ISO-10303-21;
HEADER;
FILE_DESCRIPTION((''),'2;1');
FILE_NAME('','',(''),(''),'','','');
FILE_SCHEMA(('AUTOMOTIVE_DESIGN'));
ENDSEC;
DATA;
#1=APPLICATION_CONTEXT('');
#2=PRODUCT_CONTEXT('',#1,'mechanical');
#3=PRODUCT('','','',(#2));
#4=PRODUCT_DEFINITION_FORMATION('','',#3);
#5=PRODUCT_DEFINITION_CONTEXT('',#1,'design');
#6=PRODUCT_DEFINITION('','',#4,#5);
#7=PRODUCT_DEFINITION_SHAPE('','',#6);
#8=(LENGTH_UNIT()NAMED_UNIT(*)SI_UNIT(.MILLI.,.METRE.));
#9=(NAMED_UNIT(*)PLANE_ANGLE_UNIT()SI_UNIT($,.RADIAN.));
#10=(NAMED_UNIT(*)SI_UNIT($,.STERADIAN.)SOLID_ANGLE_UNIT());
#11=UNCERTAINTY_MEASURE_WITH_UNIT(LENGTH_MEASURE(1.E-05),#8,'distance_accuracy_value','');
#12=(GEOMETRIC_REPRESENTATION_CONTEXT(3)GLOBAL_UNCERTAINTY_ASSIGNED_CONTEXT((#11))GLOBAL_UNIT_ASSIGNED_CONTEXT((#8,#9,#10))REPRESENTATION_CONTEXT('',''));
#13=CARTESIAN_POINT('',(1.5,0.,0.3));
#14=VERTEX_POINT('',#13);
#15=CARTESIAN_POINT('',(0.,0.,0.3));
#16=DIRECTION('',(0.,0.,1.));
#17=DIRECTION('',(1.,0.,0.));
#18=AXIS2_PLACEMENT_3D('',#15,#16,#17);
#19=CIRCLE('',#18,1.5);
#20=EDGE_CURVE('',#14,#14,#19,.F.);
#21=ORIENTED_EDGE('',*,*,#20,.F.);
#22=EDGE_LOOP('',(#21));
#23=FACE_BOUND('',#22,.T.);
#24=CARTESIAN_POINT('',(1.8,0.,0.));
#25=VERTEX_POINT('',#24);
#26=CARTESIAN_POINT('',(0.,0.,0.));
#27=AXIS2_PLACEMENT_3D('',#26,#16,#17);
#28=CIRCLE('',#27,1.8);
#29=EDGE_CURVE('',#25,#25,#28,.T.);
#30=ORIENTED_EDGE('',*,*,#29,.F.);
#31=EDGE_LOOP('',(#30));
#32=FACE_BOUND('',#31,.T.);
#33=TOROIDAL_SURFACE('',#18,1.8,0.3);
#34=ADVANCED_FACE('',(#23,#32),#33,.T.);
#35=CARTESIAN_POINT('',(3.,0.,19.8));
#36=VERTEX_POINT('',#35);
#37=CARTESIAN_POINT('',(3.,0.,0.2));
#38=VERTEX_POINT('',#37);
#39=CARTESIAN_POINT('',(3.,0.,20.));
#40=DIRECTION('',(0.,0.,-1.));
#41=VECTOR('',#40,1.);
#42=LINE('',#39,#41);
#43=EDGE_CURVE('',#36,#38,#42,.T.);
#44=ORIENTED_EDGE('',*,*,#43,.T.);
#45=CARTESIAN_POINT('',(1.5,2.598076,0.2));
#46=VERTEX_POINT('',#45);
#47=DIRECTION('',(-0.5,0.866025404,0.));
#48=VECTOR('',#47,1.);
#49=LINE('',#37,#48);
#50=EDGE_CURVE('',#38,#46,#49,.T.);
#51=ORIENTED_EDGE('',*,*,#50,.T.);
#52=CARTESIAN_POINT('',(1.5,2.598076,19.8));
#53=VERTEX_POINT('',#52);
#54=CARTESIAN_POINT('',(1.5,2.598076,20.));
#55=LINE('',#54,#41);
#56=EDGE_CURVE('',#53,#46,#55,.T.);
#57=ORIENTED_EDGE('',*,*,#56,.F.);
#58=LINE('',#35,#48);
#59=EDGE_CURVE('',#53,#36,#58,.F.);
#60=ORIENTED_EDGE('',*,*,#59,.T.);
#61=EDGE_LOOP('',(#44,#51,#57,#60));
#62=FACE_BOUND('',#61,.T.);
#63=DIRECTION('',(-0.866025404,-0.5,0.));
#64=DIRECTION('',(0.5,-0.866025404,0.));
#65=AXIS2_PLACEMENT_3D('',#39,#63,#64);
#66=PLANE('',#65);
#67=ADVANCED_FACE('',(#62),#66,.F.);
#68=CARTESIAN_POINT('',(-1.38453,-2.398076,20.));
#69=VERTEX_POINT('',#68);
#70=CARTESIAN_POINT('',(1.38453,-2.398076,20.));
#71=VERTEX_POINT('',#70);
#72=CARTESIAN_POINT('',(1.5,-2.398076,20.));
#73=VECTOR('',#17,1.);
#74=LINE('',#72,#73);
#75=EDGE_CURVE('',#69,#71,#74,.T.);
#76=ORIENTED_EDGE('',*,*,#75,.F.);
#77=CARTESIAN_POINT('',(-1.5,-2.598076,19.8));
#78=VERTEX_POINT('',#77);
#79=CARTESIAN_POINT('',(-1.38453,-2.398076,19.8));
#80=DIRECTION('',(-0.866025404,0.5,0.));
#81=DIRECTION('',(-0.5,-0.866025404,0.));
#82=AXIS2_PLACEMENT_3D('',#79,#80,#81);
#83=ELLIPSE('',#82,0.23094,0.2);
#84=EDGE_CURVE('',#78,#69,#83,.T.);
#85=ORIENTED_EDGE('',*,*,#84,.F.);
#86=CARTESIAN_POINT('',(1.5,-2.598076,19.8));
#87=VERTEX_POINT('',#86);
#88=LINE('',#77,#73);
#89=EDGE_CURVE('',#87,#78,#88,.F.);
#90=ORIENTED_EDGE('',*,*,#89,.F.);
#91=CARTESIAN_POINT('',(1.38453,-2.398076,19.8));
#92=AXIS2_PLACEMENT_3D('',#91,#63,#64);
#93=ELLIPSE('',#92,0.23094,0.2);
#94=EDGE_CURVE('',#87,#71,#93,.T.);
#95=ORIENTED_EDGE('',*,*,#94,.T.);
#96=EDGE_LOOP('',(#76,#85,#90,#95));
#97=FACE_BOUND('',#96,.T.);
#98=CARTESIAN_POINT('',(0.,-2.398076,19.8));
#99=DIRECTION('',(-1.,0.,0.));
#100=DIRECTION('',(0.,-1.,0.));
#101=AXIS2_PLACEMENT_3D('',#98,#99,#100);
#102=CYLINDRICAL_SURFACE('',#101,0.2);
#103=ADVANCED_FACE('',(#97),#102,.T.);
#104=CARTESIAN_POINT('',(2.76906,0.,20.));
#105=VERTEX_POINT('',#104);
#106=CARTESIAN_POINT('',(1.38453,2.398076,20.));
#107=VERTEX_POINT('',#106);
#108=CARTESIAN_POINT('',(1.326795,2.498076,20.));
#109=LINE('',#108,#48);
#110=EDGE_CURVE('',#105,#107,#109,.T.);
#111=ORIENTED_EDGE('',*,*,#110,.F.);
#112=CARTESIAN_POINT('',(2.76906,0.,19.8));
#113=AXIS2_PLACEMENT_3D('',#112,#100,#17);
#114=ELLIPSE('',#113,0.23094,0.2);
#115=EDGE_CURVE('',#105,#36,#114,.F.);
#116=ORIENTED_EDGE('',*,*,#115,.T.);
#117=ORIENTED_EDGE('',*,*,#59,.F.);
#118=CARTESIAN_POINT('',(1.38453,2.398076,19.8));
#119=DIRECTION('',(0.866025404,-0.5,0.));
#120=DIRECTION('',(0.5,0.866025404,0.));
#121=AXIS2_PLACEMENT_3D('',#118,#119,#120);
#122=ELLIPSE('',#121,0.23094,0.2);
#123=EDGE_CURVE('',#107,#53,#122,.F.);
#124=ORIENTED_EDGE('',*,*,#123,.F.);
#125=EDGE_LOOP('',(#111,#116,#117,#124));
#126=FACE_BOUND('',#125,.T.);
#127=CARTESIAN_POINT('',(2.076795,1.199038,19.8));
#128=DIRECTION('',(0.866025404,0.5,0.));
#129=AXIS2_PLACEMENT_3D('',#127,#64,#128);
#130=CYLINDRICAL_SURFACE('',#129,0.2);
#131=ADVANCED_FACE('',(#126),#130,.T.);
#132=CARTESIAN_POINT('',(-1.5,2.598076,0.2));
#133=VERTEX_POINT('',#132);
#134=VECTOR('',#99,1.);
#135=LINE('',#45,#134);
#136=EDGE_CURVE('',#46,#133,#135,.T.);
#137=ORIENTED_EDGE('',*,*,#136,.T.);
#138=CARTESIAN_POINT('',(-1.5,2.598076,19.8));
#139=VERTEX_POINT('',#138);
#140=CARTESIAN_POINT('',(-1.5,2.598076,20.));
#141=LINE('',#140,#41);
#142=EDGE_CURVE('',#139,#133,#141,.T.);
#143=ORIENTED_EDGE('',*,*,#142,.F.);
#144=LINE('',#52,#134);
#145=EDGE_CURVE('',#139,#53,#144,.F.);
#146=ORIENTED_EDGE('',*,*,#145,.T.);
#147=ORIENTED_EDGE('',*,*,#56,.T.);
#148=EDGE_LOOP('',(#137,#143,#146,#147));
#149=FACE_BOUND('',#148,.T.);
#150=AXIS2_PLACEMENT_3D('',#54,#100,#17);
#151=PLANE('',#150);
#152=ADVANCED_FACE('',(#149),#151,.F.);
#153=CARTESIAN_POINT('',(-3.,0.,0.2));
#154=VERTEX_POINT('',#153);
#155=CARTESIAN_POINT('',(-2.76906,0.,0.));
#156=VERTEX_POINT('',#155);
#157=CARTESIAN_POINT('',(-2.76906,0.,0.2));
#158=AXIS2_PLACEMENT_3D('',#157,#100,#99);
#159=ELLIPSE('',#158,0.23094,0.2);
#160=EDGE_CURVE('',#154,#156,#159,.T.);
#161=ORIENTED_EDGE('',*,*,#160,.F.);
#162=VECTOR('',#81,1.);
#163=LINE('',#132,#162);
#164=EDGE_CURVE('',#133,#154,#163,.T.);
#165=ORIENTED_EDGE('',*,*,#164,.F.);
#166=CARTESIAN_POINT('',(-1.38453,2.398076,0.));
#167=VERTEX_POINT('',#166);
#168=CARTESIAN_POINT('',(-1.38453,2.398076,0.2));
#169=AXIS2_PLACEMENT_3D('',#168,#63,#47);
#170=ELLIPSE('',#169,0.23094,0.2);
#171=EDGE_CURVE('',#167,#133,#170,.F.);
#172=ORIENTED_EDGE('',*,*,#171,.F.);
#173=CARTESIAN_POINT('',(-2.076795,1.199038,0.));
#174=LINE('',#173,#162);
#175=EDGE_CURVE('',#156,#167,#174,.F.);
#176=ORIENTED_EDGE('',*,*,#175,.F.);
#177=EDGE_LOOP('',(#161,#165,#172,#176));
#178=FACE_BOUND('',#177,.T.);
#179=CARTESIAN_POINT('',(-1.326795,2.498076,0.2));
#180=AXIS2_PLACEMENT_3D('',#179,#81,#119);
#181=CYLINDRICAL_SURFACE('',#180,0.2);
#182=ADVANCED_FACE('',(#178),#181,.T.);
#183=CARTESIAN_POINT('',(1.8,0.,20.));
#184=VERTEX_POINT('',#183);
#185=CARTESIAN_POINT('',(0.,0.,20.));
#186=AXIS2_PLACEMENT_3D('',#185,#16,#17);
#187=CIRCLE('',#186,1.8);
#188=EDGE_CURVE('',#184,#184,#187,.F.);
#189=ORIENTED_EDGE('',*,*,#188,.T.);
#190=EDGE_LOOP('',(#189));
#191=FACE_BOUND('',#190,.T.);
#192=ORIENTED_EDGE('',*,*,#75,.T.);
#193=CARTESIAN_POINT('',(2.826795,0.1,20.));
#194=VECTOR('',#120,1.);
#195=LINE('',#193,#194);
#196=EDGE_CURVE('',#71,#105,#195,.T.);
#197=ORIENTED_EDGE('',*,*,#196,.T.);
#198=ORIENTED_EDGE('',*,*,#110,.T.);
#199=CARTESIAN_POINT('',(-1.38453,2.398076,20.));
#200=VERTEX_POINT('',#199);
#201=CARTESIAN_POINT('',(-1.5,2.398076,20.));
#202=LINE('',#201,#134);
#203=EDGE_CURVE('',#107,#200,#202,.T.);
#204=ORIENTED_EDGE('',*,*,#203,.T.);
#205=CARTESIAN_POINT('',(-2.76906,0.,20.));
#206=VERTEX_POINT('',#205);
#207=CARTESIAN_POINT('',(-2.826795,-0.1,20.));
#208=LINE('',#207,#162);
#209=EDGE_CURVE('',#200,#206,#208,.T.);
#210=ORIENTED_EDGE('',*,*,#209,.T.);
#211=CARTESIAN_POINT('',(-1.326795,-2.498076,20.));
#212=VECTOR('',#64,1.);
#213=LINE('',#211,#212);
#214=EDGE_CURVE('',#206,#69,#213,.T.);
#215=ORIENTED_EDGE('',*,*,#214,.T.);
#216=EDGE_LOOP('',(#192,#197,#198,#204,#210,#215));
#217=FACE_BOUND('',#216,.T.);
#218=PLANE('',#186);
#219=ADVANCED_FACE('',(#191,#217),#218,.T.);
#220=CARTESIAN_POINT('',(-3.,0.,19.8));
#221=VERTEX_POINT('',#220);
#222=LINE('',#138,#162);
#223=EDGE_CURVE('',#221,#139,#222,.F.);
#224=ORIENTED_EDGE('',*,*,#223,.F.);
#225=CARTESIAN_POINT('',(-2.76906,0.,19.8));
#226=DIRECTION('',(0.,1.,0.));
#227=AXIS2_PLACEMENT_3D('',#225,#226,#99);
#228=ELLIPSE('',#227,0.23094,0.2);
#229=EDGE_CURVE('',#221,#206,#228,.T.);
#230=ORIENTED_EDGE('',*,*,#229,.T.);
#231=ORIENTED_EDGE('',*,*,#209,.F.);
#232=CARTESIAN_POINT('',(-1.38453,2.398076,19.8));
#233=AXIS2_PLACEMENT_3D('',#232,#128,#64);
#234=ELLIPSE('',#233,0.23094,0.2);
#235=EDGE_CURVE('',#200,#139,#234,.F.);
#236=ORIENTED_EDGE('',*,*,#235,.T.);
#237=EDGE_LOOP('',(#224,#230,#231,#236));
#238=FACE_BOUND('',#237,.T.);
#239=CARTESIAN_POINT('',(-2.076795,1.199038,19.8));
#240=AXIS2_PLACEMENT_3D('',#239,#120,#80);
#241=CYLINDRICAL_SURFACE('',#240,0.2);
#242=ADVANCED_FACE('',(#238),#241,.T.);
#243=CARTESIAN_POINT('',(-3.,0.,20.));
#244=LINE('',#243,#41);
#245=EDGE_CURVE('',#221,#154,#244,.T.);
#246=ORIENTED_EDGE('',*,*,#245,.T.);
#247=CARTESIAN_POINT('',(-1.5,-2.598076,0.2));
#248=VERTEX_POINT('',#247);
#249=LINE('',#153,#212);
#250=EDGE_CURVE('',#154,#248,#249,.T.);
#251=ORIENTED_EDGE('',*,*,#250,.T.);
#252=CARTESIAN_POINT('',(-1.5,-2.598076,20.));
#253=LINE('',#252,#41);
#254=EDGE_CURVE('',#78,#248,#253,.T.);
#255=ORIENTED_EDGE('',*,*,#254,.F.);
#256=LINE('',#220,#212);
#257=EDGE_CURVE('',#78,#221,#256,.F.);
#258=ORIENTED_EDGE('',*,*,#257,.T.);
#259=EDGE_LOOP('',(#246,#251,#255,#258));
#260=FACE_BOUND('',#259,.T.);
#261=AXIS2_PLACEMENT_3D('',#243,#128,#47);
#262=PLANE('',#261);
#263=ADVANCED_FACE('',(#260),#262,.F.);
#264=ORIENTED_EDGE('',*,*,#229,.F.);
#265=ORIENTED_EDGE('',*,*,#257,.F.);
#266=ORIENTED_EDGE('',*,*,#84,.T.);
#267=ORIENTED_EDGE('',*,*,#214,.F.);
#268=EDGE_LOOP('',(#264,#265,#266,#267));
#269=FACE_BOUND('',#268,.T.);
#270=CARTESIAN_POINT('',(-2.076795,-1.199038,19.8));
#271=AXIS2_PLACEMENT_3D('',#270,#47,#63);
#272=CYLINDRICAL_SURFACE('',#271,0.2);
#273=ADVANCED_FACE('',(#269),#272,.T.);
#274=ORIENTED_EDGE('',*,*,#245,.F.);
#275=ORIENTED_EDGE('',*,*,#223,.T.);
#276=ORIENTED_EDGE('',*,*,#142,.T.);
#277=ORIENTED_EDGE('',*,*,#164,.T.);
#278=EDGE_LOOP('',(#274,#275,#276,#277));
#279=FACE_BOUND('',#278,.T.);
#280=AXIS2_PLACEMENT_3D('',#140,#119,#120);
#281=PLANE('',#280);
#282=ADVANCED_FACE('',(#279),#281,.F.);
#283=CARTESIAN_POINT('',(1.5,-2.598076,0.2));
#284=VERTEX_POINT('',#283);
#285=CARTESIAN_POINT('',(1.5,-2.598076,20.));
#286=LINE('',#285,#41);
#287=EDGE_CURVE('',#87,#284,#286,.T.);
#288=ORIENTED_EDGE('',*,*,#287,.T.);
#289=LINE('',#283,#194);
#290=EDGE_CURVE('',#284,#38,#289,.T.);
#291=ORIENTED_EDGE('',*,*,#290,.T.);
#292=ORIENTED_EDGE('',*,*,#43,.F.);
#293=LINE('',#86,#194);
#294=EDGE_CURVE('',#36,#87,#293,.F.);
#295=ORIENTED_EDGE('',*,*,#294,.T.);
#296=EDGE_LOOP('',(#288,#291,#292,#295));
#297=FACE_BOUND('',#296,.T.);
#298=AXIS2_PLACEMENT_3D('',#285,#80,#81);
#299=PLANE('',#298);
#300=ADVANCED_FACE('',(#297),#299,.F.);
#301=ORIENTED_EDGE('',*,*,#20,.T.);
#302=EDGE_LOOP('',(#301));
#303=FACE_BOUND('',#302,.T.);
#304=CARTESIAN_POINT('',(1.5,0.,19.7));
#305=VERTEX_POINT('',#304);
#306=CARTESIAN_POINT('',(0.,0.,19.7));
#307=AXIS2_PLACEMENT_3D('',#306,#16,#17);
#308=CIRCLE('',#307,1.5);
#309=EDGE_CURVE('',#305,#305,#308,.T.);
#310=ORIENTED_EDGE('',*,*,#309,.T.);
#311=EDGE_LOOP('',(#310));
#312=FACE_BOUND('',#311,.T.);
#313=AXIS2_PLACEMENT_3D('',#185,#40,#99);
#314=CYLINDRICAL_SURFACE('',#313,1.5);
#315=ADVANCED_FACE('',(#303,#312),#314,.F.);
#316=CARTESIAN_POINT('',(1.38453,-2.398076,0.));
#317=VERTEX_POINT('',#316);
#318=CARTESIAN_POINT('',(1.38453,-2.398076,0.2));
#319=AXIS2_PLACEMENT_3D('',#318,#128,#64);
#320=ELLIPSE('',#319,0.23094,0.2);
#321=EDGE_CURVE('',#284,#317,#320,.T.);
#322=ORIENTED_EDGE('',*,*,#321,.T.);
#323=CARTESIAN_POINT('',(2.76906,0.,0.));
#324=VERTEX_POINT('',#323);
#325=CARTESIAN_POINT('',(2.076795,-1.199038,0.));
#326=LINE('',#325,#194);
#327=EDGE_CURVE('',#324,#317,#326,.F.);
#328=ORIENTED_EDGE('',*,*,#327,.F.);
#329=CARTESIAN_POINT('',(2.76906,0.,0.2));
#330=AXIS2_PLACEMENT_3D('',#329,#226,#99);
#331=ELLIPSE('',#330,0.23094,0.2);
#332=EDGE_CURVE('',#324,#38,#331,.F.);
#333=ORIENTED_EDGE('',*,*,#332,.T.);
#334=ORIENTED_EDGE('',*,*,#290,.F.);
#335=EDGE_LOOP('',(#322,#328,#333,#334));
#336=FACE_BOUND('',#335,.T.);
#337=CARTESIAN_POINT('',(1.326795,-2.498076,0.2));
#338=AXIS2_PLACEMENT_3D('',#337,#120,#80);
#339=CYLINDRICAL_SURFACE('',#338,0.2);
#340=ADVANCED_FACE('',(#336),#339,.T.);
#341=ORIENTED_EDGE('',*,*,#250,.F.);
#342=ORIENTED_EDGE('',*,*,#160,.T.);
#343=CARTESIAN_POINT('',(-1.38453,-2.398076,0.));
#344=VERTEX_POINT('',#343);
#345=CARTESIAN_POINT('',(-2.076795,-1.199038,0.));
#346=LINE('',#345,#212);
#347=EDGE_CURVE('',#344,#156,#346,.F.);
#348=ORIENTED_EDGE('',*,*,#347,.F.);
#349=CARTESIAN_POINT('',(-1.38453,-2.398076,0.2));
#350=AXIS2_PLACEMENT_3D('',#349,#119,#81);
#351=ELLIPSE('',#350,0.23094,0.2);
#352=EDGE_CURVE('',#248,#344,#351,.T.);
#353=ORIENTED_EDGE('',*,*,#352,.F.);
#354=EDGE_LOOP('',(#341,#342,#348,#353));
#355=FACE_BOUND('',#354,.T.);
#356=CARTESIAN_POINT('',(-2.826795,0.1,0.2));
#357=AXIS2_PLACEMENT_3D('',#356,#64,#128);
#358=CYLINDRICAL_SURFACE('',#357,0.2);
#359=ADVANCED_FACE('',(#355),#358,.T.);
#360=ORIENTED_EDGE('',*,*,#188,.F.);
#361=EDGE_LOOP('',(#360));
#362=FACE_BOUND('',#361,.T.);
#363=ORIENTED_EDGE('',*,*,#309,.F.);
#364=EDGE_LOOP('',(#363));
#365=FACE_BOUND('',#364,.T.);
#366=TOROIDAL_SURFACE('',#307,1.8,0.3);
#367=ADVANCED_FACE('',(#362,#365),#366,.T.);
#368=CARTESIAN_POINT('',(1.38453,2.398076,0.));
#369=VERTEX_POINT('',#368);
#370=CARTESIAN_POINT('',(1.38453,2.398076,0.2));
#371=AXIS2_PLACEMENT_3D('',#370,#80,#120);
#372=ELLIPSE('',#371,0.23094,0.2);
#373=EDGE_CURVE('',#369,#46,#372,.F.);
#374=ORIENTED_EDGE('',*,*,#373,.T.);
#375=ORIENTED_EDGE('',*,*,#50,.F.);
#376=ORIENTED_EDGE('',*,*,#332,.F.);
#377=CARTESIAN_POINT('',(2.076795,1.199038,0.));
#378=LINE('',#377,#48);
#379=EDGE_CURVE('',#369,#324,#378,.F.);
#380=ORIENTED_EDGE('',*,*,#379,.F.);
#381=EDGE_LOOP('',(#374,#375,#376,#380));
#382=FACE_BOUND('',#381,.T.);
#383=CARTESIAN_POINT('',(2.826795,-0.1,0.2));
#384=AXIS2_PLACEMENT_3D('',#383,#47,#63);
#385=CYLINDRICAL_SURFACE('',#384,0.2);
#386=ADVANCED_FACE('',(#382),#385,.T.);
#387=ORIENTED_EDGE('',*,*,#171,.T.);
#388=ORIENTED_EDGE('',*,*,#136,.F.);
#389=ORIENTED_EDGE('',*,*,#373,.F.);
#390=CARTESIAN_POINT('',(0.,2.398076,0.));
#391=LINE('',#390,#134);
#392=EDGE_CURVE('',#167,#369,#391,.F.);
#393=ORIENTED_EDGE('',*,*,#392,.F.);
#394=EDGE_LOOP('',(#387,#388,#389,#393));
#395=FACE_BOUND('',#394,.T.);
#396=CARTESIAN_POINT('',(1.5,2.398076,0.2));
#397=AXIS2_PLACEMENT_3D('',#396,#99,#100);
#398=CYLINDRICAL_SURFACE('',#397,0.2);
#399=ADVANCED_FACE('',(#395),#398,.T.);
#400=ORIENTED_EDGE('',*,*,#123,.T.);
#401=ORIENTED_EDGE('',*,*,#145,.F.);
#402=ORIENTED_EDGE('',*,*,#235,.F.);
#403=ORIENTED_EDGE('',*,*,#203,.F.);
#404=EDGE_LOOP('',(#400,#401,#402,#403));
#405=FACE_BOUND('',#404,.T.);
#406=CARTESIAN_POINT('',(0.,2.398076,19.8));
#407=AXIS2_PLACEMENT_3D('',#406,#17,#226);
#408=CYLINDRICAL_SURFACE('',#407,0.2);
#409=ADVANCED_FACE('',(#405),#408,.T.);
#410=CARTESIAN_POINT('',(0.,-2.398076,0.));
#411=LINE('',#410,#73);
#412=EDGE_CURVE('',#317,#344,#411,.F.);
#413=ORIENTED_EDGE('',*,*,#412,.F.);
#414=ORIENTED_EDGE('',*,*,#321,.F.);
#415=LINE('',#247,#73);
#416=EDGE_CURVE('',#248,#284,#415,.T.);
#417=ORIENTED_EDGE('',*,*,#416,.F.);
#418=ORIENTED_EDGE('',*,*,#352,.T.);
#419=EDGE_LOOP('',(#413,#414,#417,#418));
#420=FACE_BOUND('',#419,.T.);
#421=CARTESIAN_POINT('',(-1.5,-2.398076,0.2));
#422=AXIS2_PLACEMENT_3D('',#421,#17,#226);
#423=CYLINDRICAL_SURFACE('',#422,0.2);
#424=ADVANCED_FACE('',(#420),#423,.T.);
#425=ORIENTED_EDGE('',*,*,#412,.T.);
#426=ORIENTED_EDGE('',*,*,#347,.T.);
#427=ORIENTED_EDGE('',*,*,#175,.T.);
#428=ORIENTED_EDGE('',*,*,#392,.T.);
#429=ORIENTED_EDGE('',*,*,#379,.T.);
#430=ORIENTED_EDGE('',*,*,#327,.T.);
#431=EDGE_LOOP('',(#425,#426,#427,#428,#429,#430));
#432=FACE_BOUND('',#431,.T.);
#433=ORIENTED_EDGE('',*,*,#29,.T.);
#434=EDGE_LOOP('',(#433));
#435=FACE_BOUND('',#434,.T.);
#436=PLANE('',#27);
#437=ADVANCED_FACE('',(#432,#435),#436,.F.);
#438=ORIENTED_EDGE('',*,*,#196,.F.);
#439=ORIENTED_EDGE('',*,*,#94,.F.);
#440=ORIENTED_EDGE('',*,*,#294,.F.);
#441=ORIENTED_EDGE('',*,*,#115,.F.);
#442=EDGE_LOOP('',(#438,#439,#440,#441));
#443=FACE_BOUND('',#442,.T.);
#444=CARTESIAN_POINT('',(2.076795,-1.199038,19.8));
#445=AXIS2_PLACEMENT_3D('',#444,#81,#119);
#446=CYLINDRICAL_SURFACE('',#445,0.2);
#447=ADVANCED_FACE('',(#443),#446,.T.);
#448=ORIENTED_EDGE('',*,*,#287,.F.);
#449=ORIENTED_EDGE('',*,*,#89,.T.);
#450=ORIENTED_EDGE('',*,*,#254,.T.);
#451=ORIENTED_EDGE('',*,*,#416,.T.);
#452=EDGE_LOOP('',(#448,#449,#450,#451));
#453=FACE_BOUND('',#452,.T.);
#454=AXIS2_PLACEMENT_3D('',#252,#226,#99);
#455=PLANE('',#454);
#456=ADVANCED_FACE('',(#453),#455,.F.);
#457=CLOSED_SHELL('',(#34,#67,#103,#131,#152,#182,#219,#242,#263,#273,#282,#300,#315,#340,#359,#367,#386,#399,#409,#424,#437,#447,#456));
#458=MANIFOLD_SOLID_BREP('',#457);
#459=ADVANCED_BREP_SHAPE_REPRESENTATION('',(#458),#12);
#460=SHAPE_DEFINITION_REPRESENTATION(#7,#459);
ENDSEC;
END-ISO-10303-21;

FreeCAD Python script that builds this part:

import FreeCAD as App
import Part
import Sketcher

V = App.Vector
Q = App.Units.Quantity


def edges_at(feature, points):
    """Names of the edges that pass closest to the given points."""
    edges = feature.Shape.Edges
    near = lambda p: min(range(len(edges)), key=lambda i: edges[i].distToShape(Part.Vertex(*p))[0])
    return sorted({f"Edge{near(p) + 1}" for p in points})


def add_polygon(sketch, points):
    """Adds a closed chain of lines whose ends are joined by coincident constraints."""
    first, n = sketch.GeometryCount, len(points)
    for a, b in zip(points, points[1:] + points[:1]):
        sketch.addGeometry(Part.LineSegment(App.Vector(*a, 0), App.Vector(*b, 0)), False)
    for i in range(n):
        sketch.addConstraint(Sketcher.Constraint("Coincident", first + i, 2, first + (i + 1) % n, 1))

doc = App.newDocument("Part")
body = doc.addObject("PartDesign::Body", "Body")

sketch1 = doc.addObject("Sketcher::SketchObject", "Sketch")
body.addObject(sketch1)
sketch1.AttachmentSupport = (doc.XY_Plane, [""])
sketch1.MapMode = "FlatFace"
add_polygon(sketch1, [(3, 0), (1.5, 2.6), (-1.5, 2.6), (-3, 0), (-1.5, -2.6), (1.5, -2.6)])
sketch1.addGeometry(Part.Circle(V(0, 0, 0), V(0, 0, 1), 1.5), False)
sketch1.addConstraint([
    Sketcher.Constraint("Horizontal", 1),
    Sketcher.Constraint("Horizontal", 4),
    Sketcher.Constraint("Coincident", 6, 3, -1, 1),
    Sketcher.Constraint("Symmetric", 0, 2, 3, 2, -1, 1),
    Sketcher.Constraint("Symmetric", 2, 2, 5, 2, -1, 1),
    Sketcher.Constraint("PointOnObject", 2, 2, -1),
    Sketcher.Constraint("Parallel", 2, 5),
    Sketcher.Constraint("Vertical", 1, 2, 3, 2),
    Sketcher.Constraint("Diameter", 6, Q("3 mm")),
    Sketcher.Constraint("DistanceX", 1, 2, 1, 1, Q("3 mm")),
    Sketcher.Constraint("Angle", 0, Q("120 deg")),
    Sketcher.Constraint("Distance", 0, Q("3 mm")),
])
pad1 = doc.addObject("PartDesign::Pad", "Pad")
body.addObject(pad1)
pad1.Profile = sketch1
pad1.Length = 20
doc.recompute()

fillet = doc.addObject("PartDesign::Fillet", "Fillet")
body.addObject(fillet)
fillet.Base = (pad1, edges_at(pad1, [(-1.5, 0, 0), (-1.5, 0, 20)]))
fillet.Radius = 0.3
doc.recompute()

fillet2 = doc.addObject("PartDesign::Fillet", "Fillet001")
body.addObject(fillet2)
fillet2.Base = (fillet, edges_at(fillet, [
    (0, 2.598, 20),
    (-2.25, 1.299, 20),
    (-2.25, -1.299, 20),
    (0, -2.598, 20),
    (2.25, -1.299, 20),
    (0, -2.598, 0),
    (-2.25, -1.299, 0),
    (-2.25, 1.299, 0),
    (2.25, 1.299, 20),
    (0, 2.598, 0),
    (2.25, 1.299, 0),
    (2.25, -1.299, 0),
]))
fillet2.Radius = 0.2

doc.recompute()
